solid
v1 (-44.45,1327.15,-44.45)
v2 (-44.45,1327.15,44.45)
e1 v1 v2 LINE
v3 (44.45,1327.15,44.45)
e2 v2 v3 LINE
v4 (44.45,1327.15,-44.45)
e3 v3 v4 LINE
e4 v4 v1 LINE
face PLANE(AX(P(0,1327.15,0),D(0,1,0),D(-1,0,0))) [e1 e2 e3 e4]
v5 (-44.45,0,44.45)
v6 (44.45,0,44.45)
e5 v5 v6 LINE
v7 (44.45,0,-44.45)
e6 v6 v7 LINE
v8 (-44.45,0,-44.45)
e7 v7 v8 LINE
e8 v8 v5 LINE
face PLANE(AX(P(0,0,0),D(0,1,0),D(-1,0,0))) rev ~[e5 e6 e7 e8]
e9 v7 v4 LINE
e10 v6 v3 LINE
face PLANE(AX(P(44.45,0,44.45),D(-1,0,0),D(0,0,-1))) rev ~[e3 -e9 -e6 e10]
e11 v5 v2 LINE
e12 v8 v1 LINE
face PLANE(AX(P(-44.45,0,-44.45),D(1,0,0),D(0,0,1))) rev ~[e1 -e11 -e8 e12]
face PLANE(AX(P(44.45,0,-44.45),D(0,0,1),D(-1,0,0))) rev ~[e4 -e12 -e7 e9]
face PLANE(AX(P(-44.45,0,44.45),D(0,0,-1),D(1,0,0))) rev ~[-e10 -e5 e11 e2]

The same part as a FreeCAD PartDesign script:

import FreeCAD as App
import Part
import Sketcher
from FreeCAD import Vector
Q = App.Units.Quantity

doc = App.newDocument("Part")
params = doc.addObject("Spreadsheet::Sheet", "Params")
for row, (alias, value) in enumerate([
    ("sketch1_width", "3.5 in"),
    ("pad1_length", "52.25 in"),
], start=1):
    params.set(f"A{row}", alias)
    params.set(f"B{row}", "=" + value)
    params.setAlias(f"B{row}", alias)

body = doc.addObject("PartDesign::Body", "Body")

# Sketch on XZ plane
sketch1 = body.newObject("Sketcher::SketchObject", "Sketch")
sketch1.AttachmentSupport = (doc.getObject("XZ_Plane"), [""])
sketch1.MapMode = "FlatFace"
sketch1.addGeometry([
    Part.LineSegment(Vector(-44, 44, 0), Vector(44, 44, 0)),
    Part.LineSegment(Vector(44, 44, 0), Vector(44, -44, 0)),
    Part.LineSegment(Vector(44, -44, 0), Vector(-44, -44, 0)),
    Part.LineSegment(Vector(-44, -44, 0), Vector(-44, 44, 0)),
], False)
sketch1.addConstraint([
    Sketcher.Constraint("Coincident", 0, 2, 1, 1),
    Sketcher.Constraint("Coincident", 1, 2, 2, 1),
    Sketcher.Constraint("Coincident", 2, 2, 3, 1),
    Sketcher.Constraint("Coincident", 3, 2, 0, 1),
    Sketcher.Constraint("Horizontal", 0),
    Sketcher.Constraint("Vertical", 1),
    Sketcher.Constraint("Horizontal", 2),
    Sketcher.Constraint("Vertical", 3),
    Sketcher.Constraint("Symmetric", 0, 2, 2, 2, -1, 1),
    Sketcher.Constraint("Equal", 2, 1),
    Sketcher.Constraint("DistanceX", 0, 1, 0, 2, Q("3.5 in")),
])
sketch1.setExpression("Constraints[10]", "Params.sketch1_width")
pad1 = body.newObject("PartDesign::Pad", "Pad")
pad1.Profile = sketch1
pad1.setExpression("Length", "Params.pad1_length")
pad1.Reversed = True

doc.recompute()
